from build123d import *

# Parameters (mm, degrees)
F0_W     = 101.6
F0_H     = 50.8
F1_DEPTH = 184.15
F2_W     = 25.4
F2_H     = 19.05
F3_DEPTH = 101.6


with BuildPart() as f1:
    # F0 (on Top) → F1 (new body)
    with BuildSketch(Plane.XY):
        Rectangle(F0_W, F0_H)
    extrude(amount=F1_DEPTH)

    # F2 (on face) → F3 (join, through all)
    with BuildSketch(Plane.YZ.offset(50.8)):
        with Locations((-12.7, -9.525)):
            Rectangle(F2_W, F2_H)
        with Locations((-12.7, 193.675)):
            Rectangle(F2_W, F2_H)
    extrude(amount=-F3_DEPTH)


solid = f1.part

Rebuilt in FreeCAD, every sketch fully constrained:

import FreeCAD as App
import Part
import Sketcher
from FreeCAD import Vector
Q = App.Units.Quantity


def add_polygon(sketch, points):
    """Adds a closed chain of lines whose ends are joined by coincident constraints."""
    first, n = sketch.GeometryCount, len(points)
    for a, b in zip(points, points[1:] + points[:1]):
        sketch.addGeometry(Part.LineSegment(App.Vector(*a, 0), App.Vector(*b, 0)), False)
    for i in range(n):
        sketch.addConstraint(Sketcher.Constraint("Coincident", first + i, 2, first + (i + 1) % n, 1))

doc = App.newDocument("Part")
body = doc.addObject("PartDesign::Body", "Body")

sketch1 = body.newObject("Sketcher::SketchObject", "Sketch")
sketch1.AttachmentSupport = (doc.getObject("XY_Plane"), [""])
sketch1.MapMode = "FlatFace"
add_polygon(sketch1, [(-51, 25), (-51, -25), (51, -25), (51, 25)])
sketch1.addConstraint([
    Sketcher.Constraint("Vertical", 0),
    Sketcher.Constraint("Horizontal", 1),
    Sketcher.Constraint("Vertical", 2),
    Sketcher.Constraint("Horizontal", 3),
    Sketcher.Constraint("Symmetric", 0, 2, 2, 2, -1, 1),
    Sketcher.Constraint("DistanceX", 1, 1, 1, 2, Q("4 in")),
    Sketcher.Constraint("DistanceY", 0, 2, 0, 1, Q("2 in")),
])
pad1 = body.newObject("PartDesign::Pad", "Pad")
pad1.Profile = sketch1
pad1.Length = Q("7.25 in")

sketch2 = body.newObject("Sketcher::SketchObject", "Sketch001")
sketch2.AttachmentSupport = (doc.getObject("YZ_Plane"), [""])
sketch2.MapMode = "FlatFace"
sketch2.AttachmentOffset = App.Placement(Vector(0, 0, 2 * 25.4), App.Rotation())
add_polygon(sketch2, [(-25, 0), (-25, -19), (0, -19), (0, 0)])
add_polygon(sketch2, [(-25, 203), (-25, 184), (0, 184), (0, 203)])
sketch2.addConstraint([
    Sketcher.Constraint("Vertical", 0),
    Sketcher.Constraint("Horizontal", 1),
    Sketcher.Constraint("Vertical", 2),
    Sketcher.Constraint("Horizontal", 3),
    Sketcher.Constraint("Vertical", 4),
    Sketcher.Constraint("Horizontal", 5),
    Sketcher.Constraint("Vertical", 6),
    Sketcher.Constraint("Horizontal", 7),
    Sketcher.Constraint("Coincident", 2, 2, -1, 1),
    Sketcher.Constraint("PointOnObject", 5, 2, -2),
    Sketcher.Constraint("Vertical", 3, 2, 4, 2),
    Sketcher.Constraint("Equal", 2, 4),
    Sketcher.Constraint("DistanceX", 1, 1, 1, 2, Q("1 in")),
    Sketcher.Constraint("DistanceY", -1, 1, 6, 2, Q("8 in")),
    Sketcher.Constraint("DistanceY", 0, 2, 0, 1, Q("0.75 in")),
])
pad2 = body.newObject("PartDesign::Pad", "Pad001")
pad2.Profile = sketch2
pad2.Type = "UpToLast"
pad2.Reversed = True

doc.recompute()
